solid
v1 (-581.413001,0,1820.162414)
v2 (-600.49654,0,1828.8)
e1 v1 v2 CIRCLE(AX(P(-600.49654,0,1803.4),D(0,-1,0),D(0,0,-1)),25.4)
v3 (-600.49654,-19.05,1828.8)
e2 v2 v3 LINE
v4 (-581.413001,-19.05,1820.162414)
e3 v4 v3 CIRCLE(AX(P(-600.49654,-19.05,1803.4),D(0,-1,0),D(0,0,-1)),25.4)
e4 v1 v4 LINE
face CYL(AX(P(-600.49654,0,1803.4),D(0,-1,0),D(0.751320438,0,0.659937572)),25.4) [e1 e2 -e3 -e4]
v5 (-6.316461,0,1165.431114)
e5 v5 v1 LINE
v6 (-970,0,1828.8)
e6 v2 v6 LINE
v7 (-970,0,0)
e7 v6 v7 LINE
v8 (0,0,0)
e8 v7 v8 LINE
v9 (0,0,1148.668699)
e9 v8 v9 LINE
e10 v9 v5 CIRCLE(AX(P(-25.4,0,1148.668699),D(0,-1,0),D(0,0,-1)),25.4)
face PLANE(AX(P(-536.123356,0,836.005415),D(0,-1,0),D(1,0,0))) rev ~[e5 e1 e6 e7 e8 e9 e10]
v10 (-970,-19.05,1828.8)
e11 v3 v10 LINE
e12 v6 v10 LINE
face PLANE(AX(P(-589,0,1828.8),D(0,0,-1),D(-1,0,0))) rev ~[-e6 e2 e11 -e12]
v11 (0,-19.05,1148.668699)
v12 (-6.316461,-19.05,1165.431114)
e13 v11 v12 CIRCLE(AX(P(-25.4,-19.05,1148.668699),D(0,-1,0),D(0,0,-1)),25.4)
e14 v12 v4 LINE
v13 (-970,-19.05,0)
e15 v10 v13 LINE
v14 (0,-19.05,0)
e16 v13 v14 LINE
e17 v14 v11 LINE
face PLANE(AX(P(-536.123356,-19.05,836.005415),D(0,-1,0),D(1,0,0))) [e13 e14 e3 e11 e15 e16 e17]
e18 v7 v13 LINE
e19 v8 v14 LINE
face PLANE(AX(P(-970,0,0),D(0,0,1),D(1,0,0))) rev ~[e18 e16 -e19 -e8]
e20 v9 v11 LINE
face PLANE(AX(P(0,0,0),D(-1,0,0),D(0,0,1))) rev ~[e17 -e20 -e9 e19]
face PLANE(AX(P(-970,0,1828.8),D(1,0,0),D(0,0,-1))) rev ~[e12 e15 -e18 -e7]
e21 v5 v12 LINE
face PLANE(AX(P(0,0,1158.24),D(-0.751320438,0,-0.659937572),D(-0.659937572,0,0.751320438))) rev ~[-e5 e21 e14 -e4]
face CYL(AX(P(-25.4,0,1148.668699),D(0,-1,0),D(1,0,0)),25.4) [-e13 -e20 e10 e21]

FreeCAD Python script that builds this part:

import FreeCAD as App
import Part
import Sketcher

V = App.Vector
Q = App.Units.Quantity


def edges_at(feature, points):
    """Names of the edges that pass closest to the given points."""
    edges = feature.Shape.Edges
    near = lambda p: min(range(len(edges)), key=lambda i: edges[i].distToShape(Part.Vertex(*p))[0])
    return sorted({f"Edge{near(p) + 1}" for p in points})


def add_polygon(sketch, points):
    """Adds a closed chain of lines whose ends are joined by coincident constraints."""
    first, n = sketch.GeometryCount, len(points)
    for a, b in zip(points, points[1:] + points[:1]):
        sketch.addGeometry(Part.LineSegment(App.Vector(*a, 0), App.Vector(*b, 0)), False)
    for i in range(n):
        sketch.addConstraint(Sketcher.Constraint("Coincident", first + i, 2, first + (i + 1) % n, 1))

doc = App.newDocument("Part")
body = doc.addObject("PartDesign::Body", "Body")

# Sketch on XZ plane
sketch1 = body.newObject("Sketcher::SketchObject", "Sketch")
sketch1.AttachmentSupport = (doc.getObject("XZ_Plane"), [""])
sketch1.MapMode = "FlatFace"
add_polygon(sketch1, [(-970, 0), (0, 0), (0, 1158.24), (-589, 1828.8), (-970, 1828.8)])  # lines 0-4
sketch1.addConstraint(Sketcher.Constraint("Horizontal", 0))
sketch1.addConstraint(Sketcher.Constraint("Vertical", 1))
sketch1.addConstraint(Sketcher.Constraint("Horizontal", 3))
sketch1.addConstraint(Sketcher.Constraint("Vertical", 4))
sketch1.addConstraint(Sketcher.Constraint("Coincident", 0, 2, -1, 1))
sketch1.addConstraint(Sketcher.Constraint("DistanceX", 3, 2, 3, 1, Q("15 in")))
sketch1.addConstraint(Sketcher.Constraint("DistanceY", 4, 2, 4, 1, Q("72 in")))
sketch1.addConstraint(Sketcher.Constraint("DistanceY", 1, 1, 1, 2, Q("45.6 in")))
sketch1.addConstraint(Sketcher.Constraint("DistanceX", 0, 1, 0, 2, Q("970 mm")))
pad1 = body.newObject("PartDesign::Pad", "Pad")
pad1.Profile = sketch1
pad1.Length = Q("0.75 in")
doc.recompute()

fillet = body.newObject("PartDesign::Fillet", "Fillet")
fillet.Base = (pad1, edges_at(pad1, [(-589, -9.525, 1828.8), (0, -9.525, 1158.24)]))
fillet.Radius = Q("1 in")

doc.recompute()
